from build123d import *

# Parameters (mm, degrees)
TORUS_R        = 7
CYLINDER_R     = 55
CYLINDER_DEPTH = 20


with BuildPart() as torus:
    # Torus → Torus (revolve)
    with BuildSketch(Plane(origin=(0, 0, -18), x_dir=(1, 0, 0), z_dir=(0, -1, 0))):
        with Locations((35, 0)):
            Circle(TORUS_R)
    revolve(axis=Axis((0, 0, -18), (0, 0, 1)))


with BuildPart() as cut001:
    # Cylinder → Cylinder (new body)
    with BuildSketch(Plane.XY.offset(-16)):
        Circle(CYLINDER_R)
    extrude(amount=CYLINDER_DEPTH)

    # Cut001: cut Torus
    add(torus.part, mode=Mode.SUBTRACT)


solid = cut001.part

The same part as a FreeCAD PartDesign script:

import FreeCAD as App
import Part
import Sketcher

V = App.Vector

doc = App.newDocument("Part")
body = doc.addObject("PartDesign::Body", "Body")

sketch1 = body.newObject("Sketcher::SketchObject", "Sketch")
sketch1.AttachmentSupport = (doc.getObject("XZ_Plane"), [""])
sketch1.MapMode = "FlatFace"
sketch1.addGeometry(Part.Circle(V(35, -18, 0), V(0, 0, 1), 7), False)
sketch1.addConstraint(Sketcher.Constraint("Diameter", 0, 14.0))
sketch1.addConstraint(Sketcher.Constraint("DistanceX", -1, 1, 0, 3, 35.0))
sketch1.addConstraint(Sketcher.Constraint("DistanceY", 0, 3, -1, 1, 18.0))
revolution = body.newObject("PartDesign::Revolution", "Revolution")
revolution.Profile = sketch1
revolution.ReferenceAxis = (sketch1, ["V_Axis"])
revolution.Angle = 360
body2 = doc.addObject("PartDesign::Body", "Body001")

sketch2 = body2.newObject("Sketcher::SketchObject", "Sketch001")
sketch2.AttachmentSupport = (doc.getObject("XY_Plane001"), [""])
sketch2.MapMode = "FlatFace"
sketch2.AttachmentOffset = App.Placement(V(0, 0, -16), App.Rotation())
sketch2.addGeometry(Part.Circle(V(0, 0, 0), V(0, 0, 1), 55), False)
sketch2.addConstraint(Sketcher.Constraint("Coincident", 0, 3, -1, 1))
sketch2.addConstraint(Sketcher.Constraint("Diameter", 0, 110.0))
pad1 = body2.newObject("PartDesign::Pad", "Pad")
pad1.Profile = sketch2
pad1.Length = 20
doc.recompute()

boolean = body2.newObject("PartDesign::Boolean", "Boolean")
boolean.Type = "Cut"
boolean.addObjects([body])

doc.recompute()
